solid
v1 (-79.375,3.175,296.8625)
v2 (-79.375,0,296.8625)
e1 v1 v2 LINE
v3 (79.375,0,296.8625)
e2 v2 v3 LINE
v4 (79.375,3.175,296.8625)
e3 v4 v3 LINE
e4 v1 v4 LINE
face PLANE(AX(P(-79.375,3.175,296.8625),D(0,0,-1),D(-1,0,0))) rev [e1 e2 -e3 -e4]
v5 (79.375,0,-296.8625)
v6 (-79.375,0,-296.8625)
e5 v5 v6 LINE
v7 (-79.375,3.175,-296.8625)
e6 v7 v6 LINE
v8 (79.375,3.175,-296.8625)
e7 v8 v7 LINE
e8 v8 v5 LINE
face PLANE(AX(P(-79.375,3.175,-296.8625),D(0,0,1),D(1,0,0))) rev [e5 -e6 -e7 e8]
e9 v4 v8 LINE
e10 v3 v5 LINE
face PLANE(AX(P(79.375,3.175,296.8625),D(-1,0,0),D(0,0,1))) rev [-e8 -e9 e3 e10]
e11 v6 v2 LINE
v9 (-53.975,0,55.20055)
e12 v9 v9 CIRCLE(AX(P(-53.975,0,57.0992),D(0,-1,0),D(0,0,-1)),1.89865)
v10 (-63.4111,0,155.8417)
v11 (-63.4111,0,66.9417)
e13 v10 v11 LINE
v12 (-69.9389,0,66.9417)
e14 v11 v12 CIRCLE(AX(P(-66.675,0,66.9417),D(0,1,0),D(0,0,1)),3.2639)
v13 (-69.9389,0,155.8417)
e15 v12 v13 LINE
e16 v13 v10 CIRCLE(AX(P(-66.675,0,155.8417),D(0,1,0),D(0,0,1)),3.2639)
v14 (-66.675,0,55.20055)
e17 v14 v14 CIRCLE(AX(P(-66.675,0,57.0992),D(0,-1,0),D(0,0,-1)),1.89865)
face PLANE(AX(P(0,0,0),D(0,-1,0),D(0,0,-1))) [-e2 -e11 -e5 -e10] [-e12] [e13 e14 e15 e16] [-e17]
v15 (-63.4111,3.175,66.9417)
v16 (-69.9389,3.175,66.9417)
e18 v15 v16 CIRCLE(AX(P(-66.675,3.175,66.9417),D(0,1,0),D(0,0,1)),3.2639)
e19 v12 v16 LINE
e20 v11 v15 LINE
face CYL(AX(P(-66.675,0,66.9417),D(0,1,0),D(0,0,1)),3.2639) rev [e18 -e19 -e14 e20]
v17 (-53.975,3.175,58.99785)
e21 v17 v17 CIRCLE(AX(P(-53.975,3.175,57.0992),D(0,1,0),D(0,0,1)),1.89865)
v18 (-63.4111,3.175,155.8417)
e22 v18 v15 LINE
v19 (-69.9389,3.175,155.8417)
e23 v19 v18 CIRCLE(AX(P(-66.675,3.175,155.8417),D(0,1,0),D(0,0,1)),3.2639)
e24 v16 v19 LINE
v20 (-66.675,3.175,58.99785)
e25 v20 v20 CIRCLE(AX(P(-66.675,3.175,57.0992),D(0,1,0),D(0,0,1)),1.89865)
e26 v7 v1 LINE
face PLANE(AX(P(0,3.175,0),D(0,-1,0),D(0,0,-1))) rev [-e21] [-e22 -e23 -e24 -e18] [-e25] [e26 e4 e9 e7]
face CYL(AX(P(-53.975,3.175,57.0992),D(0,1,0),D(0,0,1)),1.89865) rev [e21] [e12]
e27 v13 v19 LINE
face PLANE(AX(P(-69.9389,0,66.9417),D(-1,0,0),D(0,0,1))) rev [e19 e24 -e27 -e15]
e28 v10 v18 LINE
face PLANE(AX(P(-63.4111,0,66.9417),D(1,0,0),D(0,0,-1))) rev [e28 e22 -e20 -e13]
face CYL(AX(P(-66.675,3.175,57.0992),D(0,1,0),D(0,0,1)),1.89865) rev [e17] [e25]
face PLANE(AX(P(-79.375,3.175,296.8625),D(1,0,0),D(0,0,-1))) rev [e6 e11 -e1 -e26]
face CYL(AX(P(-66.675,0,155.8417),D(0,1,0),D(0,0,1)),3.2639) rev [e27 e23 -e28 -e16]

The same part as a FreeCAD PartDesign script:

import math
import FreeCAD as App
import Part
import Sketcher

V = App.Vector
Q = App.Units.Quantity


def add_polygon(sketch, points):
    """Adds a closed chain of lines whose ends are joined by coincident constraints."""
    first, n = sketch.GeometryCount, len(points)
    for a, b in zip(points, points[1:] + points[:1]):
        sketch.addGeometry(Part.LineSegment(App.Vector(*a, 0), App.Vector(*b, 0)), False)
    for i in range(n):
        sketch.addConstraint(Sketcher.Constraint("Coincident", first + i, 2, first + (i + 1) % n, 1))

doc = App.newDocument("Part")
params = doc.addObject("Spreadsheet::Sheet", "Params")
for row, (alias, value) in enumerate([
    ("sketch1_width", "6.25 in"),
    ("sketch1_height", "23.375 in"),
    ("pad1_length", "0.125 in"),
    ("hole_diameter", "0.1495 in"),
    ("hole_depth", "0.5 in"),
    ("sketch3_height", "3.5 in"),
], start=1):
    params.set(f"A{row}", alias)
    params.set(f"B{row}", "=" + value)
    params.setAlias(f"B{row}", alias)

body = doc.addObject("PartDesign::Body", "Body")

# Sketch on XZ plane
sketch1 = doc.addObject("Sketcher::SketchObject", "Sketch")
body.addObject(sketch1)
sketch1.AttachmentSupport = (doc.XZ_Plane, [""])
sketch1.MapMode = "FlatFace"
add_polygon(sketch1, [(-79.375, -296.8625), (-79.375, 296.8625), (79.375, 296.8625), (79.375, -296.8625)])  # lines 0-3
sketch1.addConstraint([
    Sketcher.Constraint("Vertical", 0),
    Sketcher.Constraint("Horizontal", 1),
    Sketcher.Constraint("Vertical", 2),
    Sketcher.Constraint("Horizontal", 3),
    Sketcher.Constraint("Symmetric", 0, 2, 2, 2, -1, 1),
    Sketcher.Constraint("DistanceX", 1, 1, 1, 2, Q("6.25 in")),
    Sketcher.Constraint("DistanceY", 0, 1, 0, 2, Q("23.375 in")),
])
sketch1.setExpression("Constraints[9]", "Params.sketch1_width")
sketch1.setExpression("Constraints[10]", "Params.sketch1_height")
pad1 = doc.addObject("PartDesign::Pad", "Pad")
body.addObject(pad1)
pad1.Profile = sketch1
pad1.setExpression("Length", "Params.pad1_length")
pad1.Reversed = True

# Sketch on XZ plane
sketch2 = doc.addObject("Sketcher::SketchObject", "Sketch001")
body.addObject(sketch2)
sketch2.AttachmentSupport = (doc.XZ_Plane, [""])
sketch2.MapMode = "FlatFace"
sketch2.AttachmentOffset = App.Placement(V(0, 0, -0.125 * 25.4), App.Rotation())
sketch2.addGeometry([
    Part.Circle(V(-66.675, 57.0992, 0), V(0, 0, 1), 1.89865),
    Part.Circle(V(-53.975, 57.0992, 0), V(0, 0, 1), 1.89865),
], False)
sketch2.addConstraint([
    Sketcher.Constraint("Equal", 0, 1),
    Sketcher.Constraint("Horizontal", 0, 3, 1, 3),
    Sketcher.Constraint("Diameter", 0, Q("0.1495 in")),
    Sketcher.Constraint("DistanceX", 0, 3, 1, 3, Q("0.5 in")),
    Sketcher.Constraint("DistanceX", 0, 3, -1, 1, Q("2.625 in")),
    Sketcher.Constraint("DistanceY", -1, 1, 0, 3, Q("2.248 in")),
])
doc.recompute()
hole = doc.addObject("PartDesign::Hole", "Hole")
body.addObject(hole)
hole.Profile = sketch2
hole.ThreadType = "None"
hole.setExpression("Diameter", "Params.hole_diameter")
hole.DepthType = "Dimension"
hole.setExpression("Depth", "Params.hole_depth")
hole.DrillPoint = "Angled"
hole.DrillPointAngle = 118
hole.Reversed = True

# Sketch on XZ plane
sketch3 = doc.addObject("Sketcher::SketchObject", "Sketch002")
body.addObject(sketch3)
sketch3.AttachmentSupport = (doc.XZ_Plane, [""])
sketch3.MapMode = "FlatFace"
sketch3.AttachmentOffset = App.Placement(V(0, 0, -0.125 * 25.4), App.Rotation())
sketch3.addGeometry([
    Part.LineSegment(V(-63.4111, 155.8417, 0), V(-63.4111, 66.9417, 0)),
    Part.ArcOfCircle(Part.Circle(V(-66.675, 66.9417, 0), V(0, 0, 1), 3.2639), math.radians(180), math.radians(360)),
    Part.LineSegment(V(-69.9389, 66.9417, 0), V(-69.9389, 155.8417, 0)),
    Part.ArcOfCircle(Part.Circle(V(-66.675, 155.8417, 0), V(0, 0, 1), 3.2639), math.radians(0), math.radians(180)),
], False)
sketch3.addConstraint([
    Sketcher.Constraint("Tangent", 0, 2, 1, 2),
    Sketcher.Constraint("Tangent", 1, 1, 2, 1),
    Sketcher.Constraint("Tangent", 2, 2, 3, 2),
    Sketcher.Constraint("Tangent", 3, 1, 0, 1),
    Sketcher.Constraint("Vertical", 0),
    Sketcher.Constraint("Vertical", 2),
    Sketcher.Constraint("DistanceY", 0, 2, 0, 1, Q("3.5 in")),
    Sketcher.Constraint("Radius", 1, Q("0.1285 in")),
    Sketcher.Constraint("DistanceX", 1, 3, -1, 1, Q("2.625 in")),
    Sketcher.Constraint("DistanceY", -1, 1, 1, 3, Q("2.6355 in")),
])
sketch3.setExpression("Constraints[6]", "Params.sketch3_height")
pocket1 = doc.addObject("PartDesign::Pocket", "Pocket")
body.addObject(pocket1)
pocket1.Profile = sketch3
pocket1.Type = "ThroughAll"
pocket1.Reversed = True

doc.recompute()
